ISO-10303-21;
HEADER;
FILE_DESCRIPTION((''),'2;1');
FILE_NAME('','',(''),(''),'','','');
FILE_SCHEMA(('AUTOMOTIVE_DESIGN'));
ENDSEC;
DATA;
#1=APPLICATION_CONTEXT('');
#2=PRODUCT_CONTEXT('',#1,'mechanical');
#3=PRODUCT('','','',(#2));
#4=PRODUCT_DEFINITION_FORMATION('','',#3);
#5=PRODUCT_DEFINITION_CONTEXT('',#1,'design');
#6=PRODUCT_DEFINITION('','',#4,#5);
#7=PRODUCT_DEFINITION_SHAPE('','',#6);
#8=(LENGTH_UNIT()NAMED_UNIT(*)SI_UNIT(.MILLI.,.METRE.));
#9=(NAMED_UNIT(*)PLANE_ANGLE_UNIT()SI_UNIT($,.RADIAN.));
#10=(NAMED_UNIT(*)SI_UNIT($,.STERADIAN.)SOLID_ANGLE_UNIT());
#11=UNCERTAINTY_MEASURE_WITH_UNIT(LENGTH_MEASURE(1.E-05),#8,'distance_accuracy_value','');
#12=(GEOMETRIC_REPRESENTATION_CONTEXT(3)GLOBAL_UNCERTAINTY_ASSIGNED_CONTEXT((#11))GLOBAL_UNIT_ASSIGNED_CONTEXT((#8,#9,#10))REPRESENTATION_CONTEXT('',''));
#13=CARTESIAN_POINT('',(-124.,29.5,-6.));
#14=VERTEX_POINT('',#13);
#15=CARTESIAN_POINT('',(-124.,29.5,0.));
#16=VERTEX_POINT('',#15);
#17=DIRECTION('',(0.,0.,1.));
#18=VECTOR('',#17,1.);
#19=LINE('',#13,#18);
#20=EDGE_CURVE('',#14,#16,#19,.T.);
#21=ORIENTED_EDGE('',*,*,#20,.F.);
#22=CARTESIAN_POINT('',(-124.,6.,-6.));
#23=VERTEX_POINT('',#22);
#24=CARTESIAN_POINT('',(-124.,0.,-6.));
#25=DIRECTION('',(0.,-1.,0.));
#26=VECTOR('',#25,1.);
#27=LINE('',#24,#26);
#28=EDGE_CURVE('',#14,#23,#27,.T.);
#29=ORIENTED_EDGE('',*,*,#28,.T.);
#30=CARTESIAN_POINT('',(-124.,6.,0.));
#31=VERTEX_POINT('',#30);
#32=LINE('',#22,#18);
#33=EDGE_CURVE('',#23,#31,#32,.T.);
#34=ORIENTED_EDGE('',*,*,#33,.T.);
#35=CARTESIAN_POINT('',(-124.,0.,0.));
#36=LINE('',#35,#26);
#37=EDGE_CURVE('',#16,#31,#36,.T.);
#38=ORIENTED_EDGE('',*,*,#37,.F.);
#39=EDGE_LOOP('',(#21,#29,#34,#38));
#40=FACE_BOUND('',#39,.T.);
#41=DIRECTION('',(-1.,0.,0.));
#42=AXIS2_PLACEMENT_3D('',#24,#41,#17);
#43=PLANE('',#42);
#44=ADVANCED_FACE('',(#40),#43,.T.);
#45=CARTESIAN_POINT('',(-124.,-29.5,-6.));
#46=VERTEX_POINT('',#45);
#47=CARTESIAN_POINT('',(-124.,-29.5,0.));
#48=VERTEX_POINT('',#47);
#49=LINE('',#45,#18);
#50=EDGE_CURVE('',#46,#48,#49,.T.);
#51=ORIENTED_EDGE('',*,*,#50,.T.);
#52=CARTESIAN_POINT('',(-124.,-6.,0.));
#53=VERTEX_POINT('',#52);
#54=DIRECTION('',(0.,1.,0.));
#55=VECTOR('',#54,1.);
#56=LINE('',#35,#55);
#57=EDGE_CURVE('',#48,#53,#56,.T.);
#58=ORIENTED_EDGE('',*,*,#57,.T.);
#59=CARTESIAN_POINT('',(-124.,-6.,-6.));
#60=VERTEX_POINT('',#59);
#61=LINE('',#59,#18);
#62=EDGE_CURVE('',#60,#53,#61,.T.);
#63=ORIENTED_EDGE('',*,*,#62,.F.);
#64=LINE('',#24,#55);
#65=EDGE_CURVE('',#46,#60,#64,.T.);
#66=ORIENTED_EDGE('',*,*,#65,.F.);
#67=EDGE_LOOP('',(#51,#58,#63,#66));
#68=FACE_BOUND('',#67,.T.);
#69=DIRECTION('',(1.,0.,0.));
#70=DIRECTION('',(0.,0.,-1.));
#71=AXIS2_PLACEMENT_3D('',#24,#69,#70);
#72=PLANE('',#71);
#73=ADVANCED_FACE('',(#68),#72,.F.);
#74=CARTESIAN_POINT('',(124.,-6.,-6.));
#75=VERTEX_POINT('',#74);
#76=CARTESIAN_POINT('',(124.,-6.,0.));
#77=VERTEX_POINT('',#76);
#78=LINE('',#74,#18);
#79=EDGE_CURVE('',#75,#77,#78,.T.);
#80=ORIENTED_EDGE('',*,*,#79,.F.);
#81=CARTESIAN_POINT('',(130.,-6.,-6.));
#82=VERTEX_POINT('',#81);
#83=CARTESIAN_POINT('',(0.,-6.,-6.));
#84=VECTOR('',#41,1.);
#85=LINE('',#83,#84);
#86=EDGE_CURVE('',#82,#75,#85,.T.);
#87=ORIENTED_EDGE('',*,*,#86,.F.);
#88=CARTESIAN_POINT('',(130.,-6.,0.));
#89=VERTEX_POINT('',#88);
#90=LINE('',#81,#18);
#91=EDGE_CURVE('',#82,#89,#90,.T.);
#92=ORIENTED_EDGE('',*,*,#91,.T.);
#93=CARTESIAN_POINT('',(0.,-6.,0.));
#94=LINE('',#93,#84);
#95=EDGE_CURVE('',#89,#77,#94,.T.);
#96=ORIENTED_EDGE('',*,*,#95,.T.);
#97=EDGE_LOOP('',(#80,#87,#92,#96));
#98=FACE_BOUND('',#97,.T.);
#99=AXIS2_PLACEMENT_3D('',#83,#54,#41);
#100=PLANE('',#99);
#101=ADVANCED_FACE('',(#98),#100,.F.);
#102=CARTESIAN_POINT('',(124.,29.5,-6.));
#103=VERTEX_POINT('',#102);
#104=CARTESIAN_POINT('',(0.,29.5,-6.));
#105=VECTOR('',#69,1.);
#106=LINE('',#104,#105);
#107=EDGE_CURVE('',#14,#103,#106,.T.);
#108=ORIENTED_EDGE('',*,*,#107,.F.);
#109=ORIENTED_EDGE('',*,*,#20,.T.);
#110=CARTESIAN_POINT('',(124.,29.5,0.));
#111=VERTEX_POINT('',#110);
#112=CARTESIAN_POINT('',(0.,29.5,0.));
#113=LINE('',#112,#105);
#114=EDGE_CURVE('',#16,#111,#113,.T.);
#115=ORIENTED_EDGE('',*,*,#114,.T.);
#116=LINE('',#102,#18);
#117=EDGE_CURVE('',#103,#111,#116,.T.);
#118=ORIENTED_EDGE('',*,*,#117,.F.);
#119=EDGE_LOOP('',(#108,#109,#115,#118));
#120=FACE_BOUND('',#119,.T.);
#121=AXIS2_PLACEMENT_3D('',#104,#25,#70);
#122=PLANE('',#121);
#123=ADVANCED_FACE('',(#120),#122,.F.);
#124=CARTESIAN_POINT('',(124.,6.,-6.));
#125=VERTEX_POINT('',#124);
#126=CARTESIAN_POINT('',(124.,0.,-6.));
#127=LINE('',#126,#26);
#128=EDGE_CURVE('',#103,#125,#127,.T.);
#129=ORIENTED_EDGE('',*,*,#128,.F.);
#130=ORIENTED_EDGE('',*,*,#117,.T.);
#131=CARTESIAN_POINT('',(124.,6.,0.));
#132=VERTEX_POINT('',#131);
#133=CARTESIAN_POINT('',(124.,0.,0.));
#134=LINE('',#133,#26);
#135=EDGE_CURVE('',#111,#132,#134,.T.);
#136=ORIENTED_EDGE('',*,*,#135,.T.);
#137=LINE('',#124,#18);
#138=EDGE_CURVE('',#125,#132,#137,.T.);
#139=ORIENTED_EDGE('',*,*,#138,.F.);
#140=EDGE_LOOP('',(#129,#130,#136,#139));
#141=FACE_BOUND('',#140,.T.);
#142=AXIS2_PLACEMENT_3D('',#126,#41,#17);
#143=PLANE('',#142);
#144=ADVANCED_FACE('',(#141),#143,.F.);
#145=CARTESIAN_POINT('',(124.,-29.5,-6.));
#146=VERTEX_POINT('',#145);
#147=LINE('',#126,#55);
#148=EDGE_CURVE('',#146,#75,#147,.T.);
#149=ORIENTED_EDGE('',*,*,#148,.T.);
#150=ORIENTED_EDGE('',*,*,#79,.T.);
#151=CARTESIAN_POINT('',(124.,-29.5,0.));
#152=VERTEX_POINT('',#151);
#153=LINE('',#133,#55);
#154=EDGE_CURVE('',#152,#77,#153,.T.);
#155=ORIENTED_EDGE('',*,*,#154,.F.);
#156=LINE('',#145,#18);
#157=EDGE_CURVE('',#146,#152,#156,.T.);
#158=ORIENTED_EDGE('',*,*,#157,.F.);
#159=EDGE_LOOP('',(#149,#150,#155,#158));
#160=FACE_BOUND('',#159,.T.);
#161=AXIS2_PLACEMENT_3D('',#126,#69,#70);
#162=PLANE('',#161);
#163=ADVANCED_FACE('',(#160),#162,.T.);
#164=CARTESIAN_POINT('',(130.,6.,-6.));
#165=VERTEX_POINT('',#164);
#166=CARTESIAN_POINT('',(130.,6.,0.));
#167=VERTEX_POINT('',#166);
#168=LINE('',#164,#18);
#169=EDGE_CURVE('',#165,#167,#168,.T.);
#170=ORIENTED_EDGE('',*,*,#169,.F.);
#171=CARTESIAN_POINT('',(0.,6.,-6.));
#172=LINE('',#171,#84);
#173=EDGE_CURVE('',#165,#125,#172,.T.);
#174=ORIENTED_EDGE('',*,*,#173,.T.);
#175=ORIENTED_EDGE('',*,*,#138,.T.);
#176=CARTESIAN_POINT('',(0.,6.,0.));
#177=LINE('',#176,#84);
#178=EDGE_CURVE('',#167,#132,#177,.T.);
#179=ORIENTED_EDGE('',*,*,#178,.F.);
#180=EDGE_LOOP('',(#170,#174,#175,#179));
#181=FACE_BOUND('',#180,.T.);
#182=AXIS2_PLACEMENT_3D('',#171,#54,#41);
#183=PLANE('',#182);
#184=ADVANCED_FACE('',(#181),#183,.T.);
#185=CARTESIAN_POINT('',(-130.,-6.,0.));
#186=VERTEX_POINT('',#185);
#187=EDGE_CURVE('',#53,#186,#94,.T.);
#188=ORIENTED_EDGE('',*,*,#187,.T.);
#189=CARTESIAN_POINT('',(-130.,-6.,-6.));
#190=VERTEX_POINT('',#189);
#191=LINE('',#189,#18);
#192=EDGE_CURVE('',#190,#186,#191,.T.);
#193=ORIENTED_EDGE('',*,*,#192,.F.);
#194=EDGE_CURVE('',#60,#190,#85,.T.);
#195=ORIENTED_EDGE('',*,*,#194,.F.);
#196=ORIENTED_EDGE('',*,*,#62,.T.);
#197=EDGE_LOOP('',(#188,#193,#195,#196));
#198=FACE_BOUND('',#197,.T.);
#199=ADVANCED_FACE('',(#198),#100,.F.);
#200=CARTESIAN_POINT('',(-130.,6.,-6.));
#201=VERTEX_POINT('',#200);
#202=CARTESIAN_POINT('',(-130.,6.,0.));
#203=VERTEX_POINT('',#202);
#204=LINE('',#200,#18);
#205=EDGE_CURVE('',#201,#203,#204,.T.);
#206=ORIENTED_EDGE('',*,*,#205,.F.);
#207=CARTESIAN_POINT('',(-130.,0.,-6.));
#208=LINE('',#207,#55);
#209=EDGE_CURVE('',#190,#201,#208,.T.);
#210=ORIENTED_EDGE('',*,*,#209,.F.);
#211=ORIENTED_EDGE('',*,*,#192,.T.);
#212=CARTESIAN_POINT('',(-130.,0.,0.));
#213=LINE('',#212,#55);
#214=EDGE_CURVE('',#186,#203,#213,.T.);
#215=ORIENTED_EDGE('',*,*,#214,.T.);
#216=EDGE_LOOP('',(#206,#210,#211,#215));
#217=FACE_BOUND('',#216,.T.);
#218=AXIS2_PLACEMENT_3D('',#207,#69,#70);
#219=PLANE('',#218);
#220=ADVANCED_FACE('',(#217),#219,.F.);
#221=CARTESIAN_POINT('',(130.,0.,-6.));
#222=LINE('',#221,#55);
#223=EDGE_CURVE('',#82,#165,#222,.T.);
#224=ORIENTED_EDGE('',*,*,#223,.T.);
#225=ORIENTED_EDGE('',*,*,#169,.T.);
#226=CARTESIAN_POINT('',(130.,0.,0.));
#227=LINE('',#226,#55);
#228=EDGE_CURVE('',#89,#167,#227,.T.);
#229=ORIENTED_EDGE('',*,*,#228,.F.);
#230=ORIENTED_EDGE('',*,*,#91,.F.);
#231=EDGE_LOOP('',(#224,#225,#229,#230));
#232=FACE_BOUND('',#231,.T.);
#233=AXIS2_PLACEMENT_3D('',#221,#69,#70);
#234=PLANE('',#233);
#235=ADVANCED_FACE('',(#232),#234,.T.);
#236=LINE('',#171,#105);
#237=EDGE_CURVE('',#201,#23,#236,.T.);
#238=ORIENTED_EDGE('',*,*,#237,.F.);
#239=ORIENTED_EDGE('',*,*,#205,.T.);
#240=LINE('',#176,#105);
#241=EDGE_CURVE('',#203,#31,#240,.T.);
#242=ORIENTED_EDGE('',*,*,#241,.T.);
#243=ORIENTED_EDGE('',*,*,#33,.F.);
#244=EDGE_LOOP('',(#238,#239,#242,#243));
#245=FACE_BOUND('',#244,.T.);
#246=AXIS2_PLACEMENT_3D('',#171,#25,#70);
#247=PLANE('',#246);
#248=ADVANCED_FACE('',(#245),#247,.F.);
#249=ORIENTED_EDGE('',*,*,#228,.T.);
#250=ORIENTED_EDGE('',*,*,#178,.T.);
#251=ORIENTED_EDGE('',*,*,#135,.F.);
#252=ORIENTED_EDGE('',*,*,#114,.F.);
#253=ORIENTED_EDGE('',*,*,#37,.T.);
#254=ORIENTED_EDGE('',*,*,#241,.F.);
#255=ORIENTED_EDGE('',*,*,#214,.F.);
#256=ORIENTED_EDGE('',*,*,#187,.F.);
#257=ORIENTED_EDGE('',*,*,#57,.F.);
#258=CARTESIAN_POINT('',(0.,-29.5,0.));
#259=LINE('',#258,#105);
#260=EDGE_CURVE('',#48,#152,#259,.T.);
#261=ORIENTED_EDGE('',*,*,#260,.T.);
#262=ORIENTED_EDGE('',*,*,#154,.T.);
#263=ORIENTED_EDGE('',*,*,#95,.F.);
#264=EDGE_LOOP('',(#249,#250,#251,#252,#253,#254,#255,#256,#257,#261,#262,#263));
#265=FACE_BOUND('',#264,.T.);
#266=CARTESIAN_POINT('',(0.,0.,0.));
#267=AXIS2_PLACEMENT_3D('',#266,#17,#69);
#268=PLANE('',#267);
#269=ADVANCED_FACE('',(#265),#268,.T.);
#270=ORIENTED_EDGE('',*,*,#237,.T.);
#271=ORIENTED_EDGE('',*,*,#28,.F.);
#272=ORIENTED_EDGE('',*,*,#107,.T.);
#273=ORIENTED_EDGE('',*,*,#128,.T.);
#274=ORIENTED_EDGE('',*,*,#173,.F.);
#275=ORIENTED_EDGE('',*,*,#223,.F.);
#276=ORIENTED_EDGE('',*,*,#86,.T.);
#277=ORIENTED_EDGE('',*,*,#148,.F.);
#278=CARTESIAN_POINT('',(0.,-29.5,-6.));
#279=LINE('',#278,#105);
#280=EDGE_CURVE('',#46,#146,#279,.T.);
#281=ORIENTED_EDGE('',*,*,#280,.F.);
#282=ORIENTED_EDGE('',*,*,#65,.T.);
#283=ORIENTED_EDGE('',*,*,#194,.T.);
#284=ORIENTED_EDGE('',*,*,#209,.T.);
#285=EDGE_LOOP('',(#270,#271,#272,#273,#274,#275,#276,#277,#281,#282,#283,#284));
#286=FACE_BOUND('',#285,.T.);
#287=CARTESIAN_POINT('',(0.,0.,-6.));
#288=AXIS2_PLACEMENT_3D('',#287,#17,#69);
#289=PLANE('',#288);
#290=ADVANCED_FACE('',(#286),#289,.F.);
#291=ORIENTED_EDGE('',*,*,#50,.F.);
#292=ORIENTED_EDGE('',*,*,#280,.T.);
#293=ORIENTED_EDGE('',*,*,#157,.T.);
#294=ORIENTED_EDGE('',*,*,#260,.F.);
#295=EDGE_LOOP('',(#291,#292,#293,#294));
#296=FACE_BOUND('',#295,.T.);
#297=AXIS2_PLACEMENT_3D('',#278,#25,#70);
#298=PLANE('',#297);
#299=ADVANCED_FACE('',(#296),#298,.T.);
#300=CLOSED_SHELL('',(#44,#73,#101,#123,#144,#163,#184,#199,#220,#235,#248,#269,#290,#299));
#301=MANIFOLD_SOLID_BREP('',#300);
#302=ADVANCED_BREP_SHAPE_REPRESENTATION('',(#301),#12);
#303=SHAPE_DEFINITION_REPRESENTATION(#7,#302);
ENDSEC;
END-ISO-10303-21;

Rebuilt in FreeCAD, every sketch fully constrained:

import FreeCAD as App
import Part
import Sketcher
from FreeCAD import Vector

doc = App.newDocument("Part")
body = doc.addObject("PartDesign::Body", "Body")

# Sketch on XY plane
sketch1 = body.newObject("Sketcher::SketchObject", "Sketch")
sketch1.AttachmentSupport = (doc.getObject("XY_Plane"), [""])
sketch1.MapMode = "FlatFace"
sketch1.addGeometry(Part.LineSegment(Vector(-124, -6, 0), Vector(-124, -29.5, 0)), False)
sketch1.addGeometry(Part.LineSegment(Vector(-124, -29.5, 0), Vector(124, -29.5, 0)), False)
sketch1.addGeometry(Part.LineSegment(Vector(124, -29.5, 0), Vector(124, -6, 0)), False)
sketch1.addGeometry(Part.LineSegment(Vector(124, -6, 0), Vector(130, -6, 0)), False)
sketch1.addGeometry(Part.LineSegment(Vector(130, -6, 0), Vector(130, 6, 0)), False)
sketch1.addGeometry(Part.LineSegment(Vector(130, 6, 0), Vector(124, 6, 0)), False)
sketch1.addGeometry(Part.LineSegment(Vector(124, 6, 0), Vector(124, 29.5, 0)), False)
sketch1.addGeometry(Part.LineSegment(Vector(124, 29.5, 0), Vector(-124, 29.5, 0)), False)
sketch1.addGeometry(Part.LineSegment(Vector(-124, 29.5, 0), Vector(-124, 6, 0)), False)
sketch1.addGeometry(Part.LineSegment(Vector(-124, 6, 0), Vector(-130, 6, 0)), False)
sketch1.addGeometry(Part.LineSegment(Vector(-130, 6, 0), Vector(-130, -6, 0)), False)
sketch1.addGeometry(Part.LineSegment(Vector(-130, -6, 0), Vector(-124, -6, 0)), False)
sketch1.addConstraint(Sketcher.Constraint("Coincident", 0, 2, 1, 1))
sketch1.addConstraint(Sketcher.Constraint("Coincident", 1, 2, 2, 1))
sketch1.addConstraint(Sketcher.Constraint("Coincident", 2, 2, 3, 1))
sketch1.addConstraint(Sketcher.Constraint("Coincident", 3, 2, 4, 1))
sketch1.addConstraint(Sketcher.Constraint("Coincident", 4, 2, 5, 1))
sketch1.addConstraint(Sketcher.Constraint("Coincident", 5, 2, 6, 1))
sketch1.addConstraint(Sketcher.Constraint("Coincident", 6, 2, 7, 1))
sketch1.addConstraint(Sketcher.Constraint("Coincident", 7, 2, 8, 1))
sketch1.addConstraint(Sketcher.Constraint("Coincident", 8, 2, 9, 1))
sketch1.addConstraint(Sketcher.Constraint("Coincident", 9, 2, 10, 1))
sketch1.addConstraint(Sketcher.Constraint("Coincident", 10, 2, 11, 1))
sketch1.addConstraint(Sketcher.Constraint("Coincident", 11, 2, 0, 1))
sketch1.addConstraint(Sketcher.Constraint("Vertical", 0))
sketch1.addConstraint(Sketcher.Constraint("Horizontal", 1))
sketch1.addConstraint(Sketcher.Constraint("Vertical", 2))
sketch1.addConstraint(Sketcher.Constraint("Horizontal", 3))
sketch1.addConstraint(Sketcher.Constraint("Vertical", 4))
sketch1.addConstraint(Sketcher.Constraint("Horizontal", 5))
sketch1.addConstraint(Sketcher.Constraint("Vertical", 6))
sketch1.addConstraint(Sketcher.Constraint("Horizontal", 7))
sketch1.addConstraint(Sketcher.Constraint("Vertical", 8))
sketch1.addConstraint(Sketcher.Constraint("Horizontal", 9))
sketch1.addConstraint(Sketcher.Constraint("Vertical", 10))
sketch1.addConstraint(Sketcher.Constraint("Horizontal", 11))
sketch1.addConstraint(Sketcher.Constraint("Symmetric", 0, 2, 6, 2, -1, 1))
sketch1.addConstraint(Sketcher.Constraint("Symmetric", 2, 2, 8, 2, -1, 1))
sketch1.addConstraint(Sketcher.Constraint("Symmetric", 4, 2, 10, 2, -1, 1))
sketch1.addConstraint(Sketcher.Constraint("Symmetric", 5, 2, 8, 2, -2))
sketch1.addConstraint(Sketcher.Constraint("DistanceX", 1, 1, 1, 2, 248.0))
sketch1.addConstraint(Sketcher.Constraint("DistanceX", 3, 1, 3, 2, 6.0))
sketch1.addConstraint(Sketcher.Constraint("DistanceY", 4, 1, 4, 2, 12.0))
sketch1.addConstraint(Sketcher.Constraint("DistanceY", 0, 2, 0, 1, 23.5))
pad1 = body.newObject("PartDesign::Pad", "Pad")
pad1.Profile = sketch1
pad1.Length = 6
pad1.Reversed = True

doc.recompute()
